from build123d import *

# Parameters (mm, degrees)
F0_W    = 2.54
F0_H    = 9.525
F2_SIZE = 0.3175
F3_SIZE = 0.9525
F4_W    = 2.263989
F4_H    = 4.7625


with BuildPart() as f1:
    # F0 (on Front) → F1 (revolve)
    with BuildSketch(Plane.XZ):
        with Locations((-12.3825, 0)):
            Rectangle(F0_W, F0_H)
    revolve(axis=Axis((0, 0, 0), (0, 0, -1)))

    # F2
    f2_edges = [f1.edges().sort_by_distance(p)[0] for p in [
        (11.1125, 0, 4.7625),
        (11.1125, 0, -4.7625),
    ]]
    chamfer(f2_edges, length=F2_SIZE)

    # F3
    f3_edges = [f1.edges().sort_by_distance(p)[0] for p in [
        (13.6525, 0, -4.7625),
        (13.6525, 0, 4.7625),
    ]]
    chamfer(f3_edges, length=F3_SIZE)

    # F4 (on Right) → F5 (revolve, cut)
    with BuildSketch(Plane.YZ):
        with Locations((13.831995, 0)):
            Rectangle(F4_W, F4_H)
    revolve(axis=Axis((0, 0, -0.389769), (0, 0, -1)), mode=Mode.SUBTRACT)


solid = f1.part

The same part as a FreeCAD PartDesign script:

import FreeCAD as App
import Part
import Sketcher

V = App.Vector
Q = App.Units.Quantity


def edges_at(feature, points):
    """Names of the edges that pass closest to the given points."""
    edges = feature.Shape.Edges
    near = lambda p: min(range(len(edges)), key=lambda i: edges[i].distToShape(Part.Vertex(*p))[0])
    return sorted({f"Edge{near(p) + 1}" for p in points})

doc = App.newDocument("Part")
body = doc.addObject("PartDesign::Body", "Body")

# Sketch on XZ plane
sketch1 = body.newObject("Sketcher::SketchObject", "Sketch")
sketch1.AttachmentSupport = (doc.getObject("XZ_Plane"), [""])
sketch1.MapMode = "FlatFace"
sketch1.addGeometry([
    Part.LineSegment(V(-13.7, 4.8, 0), V(-13.7, -4.8, 0)),
    Part.LineSegment(V(-13.7, -4.8, 0), V(-11.1, -4.8, 0)),
    Part.LineSegment(V(-11.1, -4.8, 0), V(-11.1, 4.8, 0)),
    Part.LineSegment(V(-11.1, 4.8, 0), V(-13.7, 4.8, 0)),
], False)
sketch1.addConstraint([
    Sketcher.Constraint("Coincident", 0, 2, 1, 1),
    Sketcher.Constraint("Coincident", 1, 2, 2, 1),
    Sketcher.Constraint("Coincident", 2, 2, 3, 1),
    Sketcher.Constraint("Coincident", 3, 2, 0, 1),
    Sketcher.Constraint("Vertical", 0),
    Sketcher.Constraint("Horizontal", 1),
    Sketcher.Constraint("Vertical", 2),
    Sketcher.Constraint("Horizontal", 3),
    Sketcher.Constraint("DistanceX", 1, 1, 1, 2, Q("0.1 in")),
    Sketcher.Constraint("DistanceY", 0, 2, 0, 1, Q("0.375 in")),
    Sketcher.Constraint("DistanceY", 0, 2, -1, 1, Q("0.1875 in")),
    Sketcher.Constraint("DistanceX", 1, 2, -1, 1, Q("0.4375 in")),
])
revolution = body.newObject("PartDesign::Revolution", "Revolution")
revolution.Profile = sketch1
revolution.ReferenceAxis = (sketch1, ["V_Axis"])
revolution.Angle = 360
doc.recompute()

chamfer = body.newObject("PartDesign::Chamfer", "Chamfer")
chamfer.Base = (revolution, edges_at(revolution, [(11.113, 0, 4.763), (11.113, 0, -4.763)]))
chamfer.Size = Q("0.0125 in")
doc.recompute()

chamfer2 = body.newObject("PartDesign::Chamfer", "Chamfer001")
chamfer2.Base = (chamfer, edges_at(chamfer, [(13.652, 0, -4.763), (13.652, 0, 4.763)]))
chamfer2.Size = Q("0.0375 in")

# Sketch on YZ plane
sketch2 = body.newObject("Sketcher::SketchObject", "Sketch001")
sketch2.AttachmentSupport = (doc.getObject("YZ_Plane"), [""])
sketch2.MapMode = "FlatFace"
sketch2.addGeometry([
    Part.LineSegment(V(12.7, 2.4, 0), V(12.7, -2.4, 0)),
    Part.LineSegment(V(12.7, -2.4, 0), V(15, -2.4, 0)),
    Part.LineSegment(V(15, -2.4, 0), V(15, 2.4, 0)),
    Part.LineSegment(V(15, 2.4, 0), V(12.7, 2.4, 0)),
], False)
sketch2.addConstraint([
    Sketcher.Constraint("Coincident", 0, 2, 1, 1),
    Sketcher.Constraint("Coincident", 1, 2, 2, 1),
    Sketcher.Constraint("Coincident", 2, 2, 3, 1),
    Sketcher.Constraint("Coincident", 3, 2, 0, 1),
    Sketcher.Constraint("Vertical", 0),
    Sketcher.Constraint("Horizontal", 1),
    Sketcher.Constraint("Vertical", 2),
    Sketcher.Constraint("Horizontal", 3),
    Sketcher.Constraint("DistanceX", -1, 1, 0, 2, Q("0.5 in")),
    Sketcher.Constraint("DistanceY", 0, 2, 0, 1, Q("0.1875 in")),
    Sketcher.Constraint("DistanceY", 0, 2, -1, 1, Q("0.09375 in")),
    Sketcher.Constraint("DistanceX", 1, 1, 1, 2, Q("2.263989 mm")),
])
groove = body.newObject("PartDesign::Groove", "Groove")
groove.Profile = sketch2
groove.ReferenceAxis = (sketch2, ["V_Axis"])
groove.Angle = 360

doc.recompute()
